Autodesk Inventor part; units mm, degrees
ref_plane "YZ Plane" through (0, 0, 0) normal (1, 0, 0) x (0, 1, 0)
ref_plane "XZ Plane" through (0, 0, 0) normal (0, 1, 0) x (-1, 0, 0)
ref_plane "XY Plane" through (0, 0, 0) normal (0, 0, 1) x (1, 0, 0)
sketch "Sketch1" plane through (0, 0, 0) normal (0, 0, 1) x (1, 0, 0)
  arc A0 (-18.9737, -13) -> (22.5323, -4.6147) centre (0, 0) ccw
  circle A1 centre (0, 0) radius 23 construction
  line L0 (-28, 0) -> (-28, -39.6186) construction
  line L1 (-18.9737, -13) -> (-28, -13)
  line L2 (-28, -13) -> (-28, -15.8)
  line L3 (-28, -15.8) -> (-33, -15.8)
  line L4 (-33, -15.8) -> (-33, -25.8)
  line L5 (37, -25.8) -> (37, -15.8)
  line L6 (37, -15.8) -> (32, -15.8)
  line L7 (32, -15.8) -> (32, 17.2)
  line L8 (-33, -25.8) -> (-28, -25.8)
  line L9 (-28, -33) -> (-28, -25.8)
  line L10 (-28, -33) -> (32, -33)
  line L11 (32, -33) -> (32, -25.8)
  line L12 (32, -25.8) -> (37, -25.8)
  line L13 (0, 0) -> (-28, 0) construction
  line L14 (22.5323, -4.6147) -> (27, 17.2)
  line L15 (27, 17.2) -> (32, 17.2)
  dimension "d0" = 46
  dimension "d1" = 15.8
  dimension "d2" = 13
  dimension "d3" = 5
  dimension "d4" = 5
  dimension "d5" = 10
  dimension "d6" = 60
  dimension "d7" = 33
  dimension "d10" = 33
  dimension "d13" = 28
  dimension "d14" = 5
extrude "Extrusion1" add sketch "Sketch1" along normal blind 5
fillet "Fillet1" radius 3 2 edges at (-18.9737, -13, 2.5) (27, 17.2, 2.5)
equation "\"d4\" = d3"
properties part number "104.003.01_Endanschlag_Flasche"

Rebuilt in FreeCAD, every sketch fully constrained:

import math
import FreeCAD as App
import Part
import Sketcher
Q = App.Units.Quantity


def edges_at(feature, points):
    """Names of the edges that pass closest to the given points."""
    edges = feature.Shape.Edges
    near = lambda p: min(range(len(edges)), key=lambda i: edges[i].distToShape(Part.Vertex(*p))[0])
    return sorted({f"Edge{near(p) + 1}" for p in points})

doc = App.newDocument("Part")
body = doc.addObject("PartDesign::Body", "Body")

# Sketch on XY plane
sketch1 = body.newObject("Sketcher::SketchObject", "Sketch")
sketch1.AttachmentSupport = (doc.getObject("XY_Plane"), [""])
sketch1.MapMode = "FlatFace"
sketch1.addGeometry(Part.ArcOfCircle(Part.Circle(App.Vector(0, 0, 0), App.Vector(0, 0, 1), 23), math.radians(-146), math.radians(-12)), False)
sketch1.addGeometry(Part.LineSegment(App.Vector(-19, -13, 0), App.Vector(-28, -13, 0)), False)
sketch1.addGeometry(Part.LineSegment(App.Vector(-28, -13, 0), App.Vector(-28, -15.8, 0)), False)
sketch1.addGeometry(Part.LineSegment(App.Vector(-28, -15.8, 0), App.Vector(-33, -15.8, 0)), False)
sketch1.addGeometry(Part.LineSegment(App.Vector(-33, -15.8, 0), App.Vector(-33, -25.8, 0)), False)
sketch1.addGeometry(Part.LineSegment(App.Vector(-33, -25.8, 0), App.Vector(-28, -25.8, 0)), False)
sketch1.addGeometry(Part.LineSegment(App.Vector(-28, -25.8, 0), App.Vector(-28, -33, 0)), False)
sketch1.addGeometry(Part.LineSegment(App.Vector(-28, -33, 0), App.Vector(32, -33, 0)), False)
sketch1.addGeometry(Part.LineSegment(App.Vector(32, -33, 0), App.Vector(32, -25.8, 0)), False)
sketch1.addGeometry(Part.LineSegment(App.Vector(32, -25.8, 0), App.Vector(37, -25.8, 0)), False)
sketch1.addGeometry(Part.LineSegment(App.Vector(37, -25.8, 0), App.Vector(37, -15.8, 0)), False)
sketch1.addGeometry(Part.LineSegment(App.Vector(37, -15.8, 0), App.Vector(32, -15.8, 0)), False)
sketch1.addGeometry(Part.LineSegment(App.Vector(32, -15.8, 0), App.Vector(32, 17.2, 0)), False)
sketch1.addGeometry(Part.LineSegment(App.Vector(32, 17.2, 0), App.Vector(27, 17.2, 0)), False)
sketch1.addGeometry(Part.LineSegment(App.Vector(27, 17.2, 0), App.Vector(22.5, -4.6, 0)), False)
sketch1.addConstraint(Sketcher.Constraint("Coincident", 0, 1, 1, 1))
sketch1.addConstraint(Sketcher.Constraint("Coincident", 1, 2, 2, 1))
sketch1.addConstraint(Sketcher.Constraint("Coincident", 2, 2, 3, 1))
sketch1.addConstraint(Sketcher.Constraint("Coincident", 3, 2, 4, 1))
sketch1.addConstraint(Sketcher.Constraint("Coincident", 4, 2, 5, 1))
sketch1.addConstraint(Sketcher.Constraint("Coincident", 5, 2, 6, 1))
sketch1.addConstraint(Sketcher.Constraint("Coincident", 6, 2, 7, 1))
sketch1.addConstraint(Sketcher.Constraint("Coincident", 7, 2, 8, 1))
sketch1.addConstraint(Sketcher.Constraint("Coincident", 8, 2, 9, 1))
sketch1.addConstraint(Sketcher.Constraint("Coincident", 9, 2, 10, 1))
sketch1.addConstraint(Sketcher.Constraint("Coincident", 10, 2, 11, 1))
sketch1.addConstraint(Sketcher.Constraint("Coincident", 11, 2, 12, 1))
sketch1.addConstraint(Sketcher.Constraint("Coincident", 12, 2, 13, 1))
sketch1.addConstraint(Sketcher.Constraint("Coincident", 13, 2, 14, 1))
sketch1.addConstraint(Sketcher.Constraint("Tangent", 14, 2, 0, 2))
sketch1.addConstraint(Sketcher.Constraint("Horizontal", 1))
sketch1.addConstraint(Sketcher.Constraint("Vertical", 2))
sketch1.addConstraint(Sketcher.Constraint("Horizontal", 3))
sketch1.addConstraint(Sketcher.Constraint("Vertical", 4))
sketch1.addConstraint(Sketcher.Constraint("Horizontal", 5))
sketch1.addConstraint(Sketcher.Constraint("Vertical", 6))
sketch1.addConstraint(Sketcher.Constraint("Horizontal", 7))
sketch1.addConstraint(Sketcher.Constraint("Vertical", 8))
sketch1.addConstraint(Sketcher.Constraint("Horizontal", 9))
sketch1.addConstraint(Sketcher.Constraint("Vertical", 10))
sketch1.addConstraint(Sketcher.Constraint("Horizontal", 11))
sketch1.addConstraint(Sketcher.Constraint("Vertical", 12))
sketch1.addConstraint(Sketcher.Constraint("Horizontal", 13))
sketch1.addConstraint(Sketcher.Constraint("Coincident", 0, 3, -1, 1))
sketch1.addConstraint(Sketcher.Constraint("Horizontal", 5, 2, 8, 2))
sketch1.addConstraint(Sketcher.Constraint("Horizontal", 3, 2, 10, 2))
sketch1.addConstraint(Sketcher.Constraint("Vertical", 2, 2, 5, 2))
sketch1.addConstraint(Sketcher.Constraint("Vertical", 8, 2, 11, 2))
sketch1.addConstraint(Sketcher.Constraint("Equal", 5, 9))
sketch1.addConstraint(Sketcher.Constraint("Equal", 11, 13))
sketch1.addConstraint(Sketcher.Constraint("Radius", 0, Q("23 mm")))
sketch1.addConstraint(Sketcher.Constraint("DistanceX", 3, 2, 3, 1, Q("5 mm")))
sketch1.addConstraint(Sketcher.Constraint("DistanceX", 7, 1, 7, 2, Q("60 mm")))
sketch1.addConstraint(Sketcher.Constraint("DistanceY", 4, 2, 4, 1, Q("10 mm")))
sketch1.addConstraint(Sketcher.Constraint("DistanceY", 12, 1, 12, 2, Q("33 mm")))
sketch1.addConstraint(Sketcher.Constraint("DistanceY", 0, 1, -1, 1, Q("13 mm")))
sketch1.addConstraint(Sketcher.Constraint("DistanceX", 1, 2, -1, 1, Q("28 mm")))
sketch1.addConstraint(Sketcher.Constraint("DistanceY", 6, 2, -1, 1, Q("33 mm")))
sketch1.addConstraint(Sketcher.Constraint("DistanceY", 2, 2, -1, 1, Q("15.8 mm")))
pad1 = body.newObject("PartDesign::Pad", "Pad")
pad1.Profile = sketch1
pad1.Length = 5
doc.recompute()

fillet = body.newObject("PartDesign::Fillet", "Fillet")
fillet.Base = (pad1, edges_at(pad1, [(-18.974, -13, 2.5), (27, 17.2, 2.5)]))
fillet.Radius = 3

doc.recompute()
